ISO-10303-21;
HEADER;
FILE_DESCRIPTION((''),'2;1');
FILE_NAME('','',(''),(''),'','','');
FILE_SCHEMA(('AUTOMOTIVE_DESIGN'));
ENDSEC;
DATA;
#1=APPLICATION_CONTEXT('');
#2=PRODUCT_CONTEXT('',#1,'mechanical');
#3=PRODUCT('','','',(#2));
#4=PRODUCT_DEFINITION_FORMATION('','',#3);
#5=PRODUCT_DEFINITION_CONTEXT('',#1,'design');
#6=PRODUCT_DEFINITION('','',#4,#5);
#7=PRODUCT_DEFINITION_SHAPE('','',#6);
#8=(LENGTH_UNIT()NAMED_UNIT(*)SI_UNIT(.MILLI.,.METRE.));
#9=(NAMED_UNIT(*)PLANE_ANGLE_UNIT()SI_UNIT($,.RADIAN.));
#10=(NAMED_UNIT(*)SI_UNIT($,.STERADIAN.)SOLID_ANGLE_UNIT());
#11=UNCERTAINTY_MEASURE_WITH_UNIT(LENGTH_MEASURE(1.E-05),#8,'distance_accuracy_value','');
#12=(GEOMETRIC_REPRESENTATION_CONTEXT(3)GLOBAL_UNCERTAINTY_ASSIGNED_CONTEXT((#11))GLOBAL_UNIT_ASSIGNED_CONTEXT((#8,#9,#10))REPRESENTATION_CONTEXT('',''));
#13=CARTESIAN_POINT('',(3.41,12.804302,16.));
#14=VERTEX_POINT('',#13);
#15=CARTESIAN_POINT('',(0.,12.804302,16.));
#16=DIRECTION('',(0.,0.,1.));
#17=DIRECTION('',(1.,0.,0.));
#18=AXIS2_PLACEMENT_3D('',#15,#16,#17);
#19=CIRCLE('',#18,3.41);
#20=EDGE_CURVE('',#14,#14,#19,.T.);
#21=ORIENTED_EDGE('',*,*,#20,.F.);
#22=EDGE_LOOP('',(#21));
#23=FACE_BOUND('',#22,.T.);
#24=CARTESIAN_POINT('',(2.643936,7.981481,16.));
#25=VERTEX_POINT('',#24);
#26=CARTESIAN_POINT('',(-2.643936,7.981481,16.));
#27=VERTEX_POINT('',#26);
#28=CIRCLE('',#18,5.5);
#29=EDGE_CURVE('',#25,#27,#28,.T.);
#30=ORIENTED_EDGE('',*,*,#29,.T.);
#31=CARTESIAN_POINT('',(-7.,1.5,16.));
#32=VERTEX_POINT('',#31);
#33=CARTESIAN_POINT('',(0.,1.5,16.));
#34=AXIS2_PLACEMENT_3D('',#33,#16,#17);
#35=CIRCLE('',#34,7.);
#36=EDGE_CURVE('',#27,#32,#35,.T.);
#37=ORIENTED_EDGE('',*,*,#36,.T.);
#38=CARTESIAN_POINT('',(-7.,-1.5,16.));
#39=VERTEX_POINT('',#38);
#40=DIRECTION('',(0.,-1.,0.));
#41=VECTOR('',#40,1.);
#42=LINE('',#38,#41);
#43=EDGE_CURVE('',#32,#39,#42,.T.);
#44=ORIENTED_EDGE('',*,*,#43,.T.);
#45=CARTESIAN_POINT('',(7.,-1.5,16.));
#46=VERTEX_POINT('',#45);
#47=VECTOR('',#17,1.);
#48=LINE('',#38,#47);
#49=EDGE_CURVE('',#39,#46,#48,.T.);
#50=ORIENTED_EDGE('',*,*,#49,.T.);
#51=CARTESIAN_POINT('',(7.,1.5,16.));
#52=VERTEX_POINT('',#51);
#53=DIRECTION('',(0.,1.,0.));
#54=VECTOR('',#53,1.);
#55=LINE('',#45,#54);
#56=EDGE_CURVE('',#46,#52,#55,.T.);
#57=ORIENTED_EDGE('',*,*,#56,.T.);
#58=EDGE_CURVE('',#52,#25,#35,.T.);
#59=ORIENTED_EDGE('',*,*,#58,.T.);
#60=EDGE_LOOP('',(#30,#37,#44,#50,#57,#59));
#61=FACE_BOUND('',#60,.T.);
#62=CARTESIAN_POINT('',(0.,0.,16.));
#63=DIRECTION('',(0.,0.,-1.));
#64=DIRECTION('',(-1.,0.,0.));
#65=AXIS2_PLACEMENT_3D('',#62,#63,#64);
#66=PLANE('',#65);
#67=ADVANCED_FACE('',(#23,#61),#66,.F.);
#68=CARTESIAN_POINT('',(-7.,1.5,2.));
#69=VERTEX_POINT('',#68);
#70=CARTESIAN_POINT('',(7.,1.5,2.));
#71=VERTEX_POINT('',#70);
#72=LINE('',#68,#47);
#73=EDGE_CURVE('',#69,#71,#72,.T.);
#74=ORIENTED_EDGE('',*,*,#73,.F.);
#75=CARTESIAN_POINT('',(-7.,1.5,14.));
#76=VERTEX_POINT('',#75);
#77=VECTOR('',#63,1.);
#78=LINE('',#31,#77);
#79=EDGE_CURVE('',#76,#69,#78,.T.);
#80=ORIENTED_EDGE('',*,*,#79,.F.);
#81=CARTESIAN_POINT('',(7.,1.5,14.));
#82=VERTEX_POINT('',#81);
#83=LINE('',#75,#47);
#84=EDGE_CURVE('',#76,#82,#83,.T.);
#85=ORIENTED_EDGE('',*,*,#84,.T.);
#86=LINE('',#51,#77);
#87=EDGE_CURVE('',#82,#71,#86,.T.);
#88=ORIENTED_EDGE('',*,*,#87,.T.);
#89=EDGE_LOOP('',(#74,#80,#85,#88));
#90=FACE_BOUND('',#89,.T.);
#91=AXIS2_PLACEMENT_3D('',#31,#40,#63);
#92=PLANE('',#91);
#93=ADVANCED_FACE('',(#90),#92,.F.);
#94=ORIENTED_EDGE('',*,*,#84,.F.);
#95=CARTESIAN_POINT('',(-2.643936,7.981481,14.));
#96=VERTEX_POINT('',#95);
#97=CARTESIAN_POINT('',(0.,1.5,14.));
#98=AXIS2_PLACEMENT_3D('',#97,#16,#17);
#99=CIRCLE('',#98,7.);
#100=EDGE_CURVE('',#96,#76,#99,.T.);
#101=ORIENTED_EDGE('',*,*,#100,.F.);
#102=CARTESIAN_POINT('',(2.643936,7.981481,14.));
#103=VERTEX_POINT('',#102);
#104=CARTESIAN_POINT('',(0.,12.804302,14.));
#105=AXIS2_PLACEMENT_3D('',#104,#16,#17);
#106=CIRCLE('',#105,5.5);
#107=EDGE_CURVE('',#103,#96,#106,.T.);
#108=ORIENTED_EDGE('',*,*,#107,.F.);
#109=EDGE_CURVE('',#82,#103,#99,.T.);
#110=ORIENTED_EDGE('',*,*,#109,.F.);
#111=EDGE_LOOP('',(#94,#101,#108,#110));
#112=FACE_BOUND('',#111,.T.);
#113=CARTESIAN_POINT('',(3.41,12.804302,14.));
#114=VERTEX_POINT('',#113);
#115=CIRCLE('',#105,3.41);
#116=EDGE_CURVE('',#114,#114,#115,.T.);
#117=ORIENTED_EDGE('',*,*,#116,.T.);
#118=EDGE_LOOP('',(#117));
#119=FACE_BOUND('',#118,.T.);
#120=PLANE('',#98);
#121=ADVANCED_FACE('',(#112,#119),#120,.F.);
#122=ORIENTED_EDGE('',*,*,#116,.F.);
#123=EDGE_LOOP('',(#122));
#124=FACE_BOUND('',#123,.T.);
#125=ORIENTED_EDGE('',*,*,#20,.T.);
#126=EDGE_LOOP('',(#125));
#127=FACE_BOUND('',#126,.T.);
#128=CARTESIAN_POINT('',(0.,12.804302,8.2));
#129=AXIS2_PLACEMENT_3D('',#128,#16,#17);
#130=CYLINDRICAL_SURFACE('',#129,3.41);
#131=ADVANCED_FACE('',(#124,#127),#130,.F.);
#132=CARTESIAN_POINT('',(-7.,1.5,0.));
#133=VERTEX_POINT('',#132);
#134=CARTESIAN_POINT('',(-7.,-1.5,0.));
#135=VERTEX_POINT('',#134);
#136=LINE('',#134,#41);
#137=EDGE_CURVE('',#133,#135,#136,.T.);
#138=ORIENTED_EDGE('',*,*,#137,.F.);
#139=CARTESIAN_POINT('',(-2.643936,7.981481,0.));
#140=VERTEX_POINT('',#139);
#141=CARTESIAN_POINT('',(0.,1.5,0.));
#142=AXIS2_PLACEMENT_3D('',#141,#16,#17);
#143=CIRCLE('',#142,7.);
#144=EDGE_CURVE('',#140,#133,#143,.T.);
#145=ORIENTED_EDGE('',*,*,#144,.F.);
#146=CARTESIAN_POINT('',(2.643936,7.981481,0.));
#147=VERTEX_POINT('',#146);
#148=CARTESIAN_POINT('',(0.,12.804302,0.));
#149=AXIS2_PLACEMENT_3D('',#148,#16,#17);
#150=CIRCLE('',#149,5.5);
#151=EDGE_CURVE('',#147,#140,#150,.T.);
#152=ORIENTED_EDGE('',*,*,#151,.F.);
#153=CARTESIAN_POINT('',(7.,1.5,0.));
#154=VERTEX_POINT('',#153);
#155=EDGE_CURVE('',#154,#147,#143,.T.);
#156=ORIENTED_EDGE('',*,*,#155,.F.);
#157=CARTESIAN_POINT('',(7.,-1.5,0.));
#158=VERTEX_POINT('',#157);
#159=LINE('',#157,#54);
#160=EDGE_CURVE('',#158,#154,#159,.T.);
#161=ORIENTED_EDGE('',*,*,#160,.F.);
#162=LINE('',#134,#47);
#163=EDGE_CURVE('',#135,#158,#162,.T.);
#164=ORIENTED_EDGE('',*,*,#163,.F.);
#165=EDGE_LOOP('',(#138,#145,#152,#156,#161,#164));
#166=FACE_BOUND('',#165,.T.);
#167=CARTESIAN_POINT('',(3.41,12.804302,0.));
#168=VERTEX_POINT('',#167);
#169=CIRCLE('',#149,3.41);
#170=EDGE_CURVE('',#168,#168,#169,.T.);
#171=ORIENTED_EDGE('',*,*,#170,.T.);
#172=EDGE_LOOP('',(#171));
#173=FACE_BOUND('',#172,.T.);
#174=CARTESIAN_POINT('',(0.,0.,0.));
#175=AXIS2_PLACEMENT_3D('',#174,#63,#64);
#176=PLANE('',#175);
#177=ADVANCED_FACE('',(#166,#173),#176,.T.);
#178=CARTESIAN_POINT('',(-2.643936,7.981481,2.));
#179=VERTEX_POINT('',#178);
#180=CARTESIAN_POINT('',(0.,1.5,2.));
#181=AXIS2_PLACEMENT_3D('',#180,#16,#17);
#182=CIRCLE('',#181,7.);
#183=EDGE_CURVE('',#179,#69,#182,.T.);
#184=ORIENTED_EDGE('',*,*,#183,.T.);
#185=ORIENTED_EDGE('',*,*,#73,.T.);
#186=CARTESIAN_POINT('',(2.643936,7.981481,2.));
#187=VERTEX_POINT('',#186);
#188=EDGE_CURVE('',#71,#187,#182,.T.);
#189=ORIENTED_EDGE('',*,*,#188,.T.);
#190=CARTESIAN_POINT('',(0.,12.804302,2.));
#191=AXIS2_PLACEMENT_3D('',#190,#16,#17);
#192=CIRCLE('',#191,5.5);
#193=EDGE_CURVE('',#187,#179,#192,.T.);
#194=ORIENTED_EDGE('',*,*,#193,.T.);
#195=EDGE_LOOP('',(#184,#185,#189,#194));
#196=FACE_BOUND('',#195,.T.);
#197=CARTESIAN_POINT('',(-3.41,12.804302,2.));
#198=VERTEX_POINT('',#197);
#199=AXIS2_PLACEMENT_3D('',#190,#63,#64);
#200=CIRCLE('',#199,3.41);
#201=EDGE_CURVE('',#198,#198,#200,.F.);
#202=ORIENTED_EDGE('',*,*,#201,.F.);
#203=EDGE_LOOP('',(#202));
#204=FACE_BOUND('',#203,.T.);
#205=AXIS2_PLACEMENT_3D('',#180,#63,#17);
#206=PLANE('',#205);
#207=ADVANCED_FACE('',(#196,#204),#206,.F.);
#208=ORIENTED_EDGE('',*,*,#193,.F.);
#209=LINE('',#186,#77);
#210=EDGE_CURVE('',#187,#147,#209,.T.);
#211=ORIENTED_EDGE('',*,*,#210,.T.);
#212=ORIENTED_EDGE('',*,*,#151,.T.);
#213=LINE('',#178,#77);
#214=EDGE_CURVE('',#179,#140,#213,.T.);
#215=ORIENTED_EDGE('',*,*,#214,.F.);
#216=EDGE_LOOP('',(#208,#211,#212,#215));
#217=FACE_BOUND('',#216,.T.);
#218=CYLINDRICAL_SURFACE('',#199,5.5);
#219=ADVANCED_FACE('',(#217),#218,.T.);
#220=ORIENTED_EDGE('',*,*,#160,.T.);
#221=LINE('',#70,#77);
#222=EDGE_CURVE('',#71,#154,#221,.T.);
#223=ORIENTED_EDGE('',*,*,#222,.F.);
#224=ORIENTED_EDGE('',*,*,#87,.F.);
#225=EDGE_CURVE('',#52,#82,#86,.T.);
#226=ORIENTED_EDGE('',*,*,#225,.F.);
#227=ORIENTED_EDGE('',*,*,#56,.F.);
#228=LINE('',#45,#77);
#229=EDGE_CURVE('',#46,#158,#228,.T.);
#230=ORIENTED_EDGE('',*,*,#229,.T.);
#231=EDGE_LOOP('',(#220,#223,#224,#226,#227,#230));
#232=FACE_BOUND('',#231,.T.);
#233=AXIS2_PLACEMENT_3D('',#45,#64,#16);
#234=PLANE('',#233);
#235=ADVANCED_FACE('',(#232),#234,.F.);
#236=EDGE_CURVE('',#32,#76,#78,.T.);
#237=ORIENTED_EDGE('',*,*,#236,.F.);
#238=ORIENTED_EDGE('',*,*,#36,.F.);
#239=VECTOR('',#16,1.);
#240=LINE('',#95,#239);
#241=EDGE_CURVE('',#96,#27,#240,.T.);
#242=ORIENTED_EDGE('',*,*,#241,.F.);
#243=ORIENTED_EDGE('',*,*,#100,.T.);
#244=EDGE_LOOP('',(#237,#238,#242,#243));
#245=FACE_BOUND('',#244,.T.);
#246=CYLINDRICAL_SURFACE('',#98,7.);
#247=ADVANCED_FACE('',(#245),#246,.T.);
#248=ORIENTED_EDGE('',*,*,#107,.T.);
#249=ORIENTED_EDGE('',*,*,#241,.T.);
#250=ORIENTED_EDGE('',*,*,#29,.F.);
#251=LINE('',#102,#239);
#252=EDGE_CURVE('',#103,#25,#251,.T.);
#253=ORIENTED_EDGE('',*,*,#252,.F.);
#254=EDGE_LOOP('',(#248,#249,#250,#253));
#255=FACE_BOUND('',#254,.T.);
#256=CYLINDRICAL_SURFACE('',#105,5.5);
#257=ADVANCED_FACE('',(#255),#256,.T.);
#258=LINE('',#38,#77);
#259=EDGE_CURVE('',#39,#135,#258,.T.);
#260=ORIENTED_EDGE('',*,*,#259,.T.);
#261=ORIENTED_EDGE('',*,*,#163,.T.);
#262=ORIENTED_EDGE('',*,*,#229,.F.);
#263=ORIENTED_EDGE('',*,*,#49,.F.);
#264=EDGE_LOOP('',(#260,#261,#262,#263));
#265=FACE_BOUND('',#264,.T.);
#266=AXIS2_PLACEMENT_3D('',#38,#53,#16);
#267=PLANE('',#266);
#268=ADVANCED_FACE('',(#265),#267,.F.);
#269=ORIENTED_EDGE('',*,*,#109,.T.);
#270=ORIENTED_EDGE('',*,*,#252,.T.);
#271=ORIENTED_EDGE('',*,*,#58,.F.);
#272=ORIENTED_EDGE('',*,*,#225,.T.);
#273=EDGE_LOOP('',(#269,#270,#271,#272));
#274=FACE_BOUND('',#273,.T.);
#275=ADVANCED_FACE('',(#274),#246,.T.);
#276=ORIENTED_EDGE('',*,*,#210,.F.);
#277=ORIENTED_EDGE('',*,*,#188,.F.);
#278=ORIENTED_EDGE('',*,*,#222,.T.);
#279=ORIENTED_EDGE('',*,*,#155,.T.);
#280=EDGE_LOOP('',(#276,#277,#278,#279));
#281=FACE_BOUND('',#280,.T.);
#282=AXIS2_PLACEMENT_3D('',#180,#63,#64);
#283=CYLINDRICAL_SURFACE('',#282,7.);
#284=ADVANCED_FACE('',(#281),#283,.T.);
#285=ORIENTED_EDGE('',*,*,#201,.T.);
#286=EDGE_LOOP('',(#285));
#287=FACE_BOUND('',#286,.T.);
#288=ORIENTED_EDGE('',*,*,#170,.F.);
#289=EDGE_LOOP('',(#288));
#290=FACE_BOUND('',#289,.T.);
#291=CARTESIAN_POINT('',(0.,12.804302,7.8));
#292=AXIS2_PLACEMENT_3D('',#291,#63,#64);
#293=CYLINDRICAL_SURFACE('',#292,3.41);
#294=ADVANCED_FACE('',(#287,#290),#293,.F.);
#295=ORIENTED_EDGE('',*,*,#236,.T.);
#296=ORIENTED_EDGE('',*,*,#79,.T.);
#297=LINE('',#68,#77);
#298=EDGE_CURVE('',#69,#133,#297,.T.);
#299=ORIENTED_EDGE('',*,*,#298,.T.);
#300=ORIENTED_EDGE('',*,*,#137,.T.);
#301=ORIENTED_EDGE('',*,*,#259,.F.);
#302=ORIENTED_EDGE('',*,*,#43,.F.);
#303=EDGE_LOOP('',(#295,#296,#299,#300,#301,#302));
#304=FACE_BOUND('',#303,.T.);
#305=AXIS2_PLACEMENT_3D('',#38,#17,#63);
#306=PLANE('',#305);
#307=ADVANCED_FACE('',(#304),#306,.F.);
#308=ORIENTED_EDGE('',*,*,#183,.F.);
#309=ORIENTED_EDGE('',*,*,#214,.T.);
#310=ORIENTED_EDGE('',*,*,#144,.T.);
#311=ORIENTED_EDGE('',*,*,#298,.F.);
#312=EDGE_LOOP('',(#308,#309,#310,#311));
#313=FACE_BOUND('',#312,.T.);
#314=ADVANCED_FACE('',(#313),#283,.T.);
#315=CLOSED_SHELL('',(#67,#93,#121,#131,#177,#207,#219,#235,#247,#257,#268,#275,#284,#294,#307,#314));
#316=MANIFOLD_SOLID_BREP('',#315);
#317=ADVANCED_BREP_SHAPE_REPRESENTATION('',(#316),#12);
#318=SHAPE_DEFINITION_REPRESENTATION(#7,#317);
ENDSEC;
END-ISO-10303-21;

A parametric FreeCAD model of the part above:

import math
import FreeCAD as App
import Part
import Sketcher


def add_polygon(sketch, points):
    """Adds a closed chain of lines whose ends are joined by coincident constraints."""
    first, n = sketch.GeometryCount, len(points)
    for a, b in zip(points, points[1:] + points[:1]):
        sketch.addGeometry(Part.LineSegment(App.Vector(*a, 0), App.Vector(*b, 0)), False)
    for i in range(n):
        sketch.addConstraint(Sketcher.Constraint("Coincident", first + i, 2, first + (i + 1) % n, 1))

doc = App.newDocument("Part")
params = doc.addObject("Spreadsheet::Sheet", "Params")
for row, (alias, value) in enumerate([
    ("sketch1_width", "14 mm"),
    ("sketch1_height", "3 mm"),
    ("pad1_length", "16 mm"),
    ("sketch2_radius", "7 mm"),
    ("sketch2_radius2", "5.5 mm"),
    ("pad2_length", "2 mm"),
    ("sketch3_diameter", "6.82 mm"),
    ("pocket1_length", "7.8 mm"),
], start=1):
    params.set(f"A{row}", alias)
    params.set(f"B{row}", "=" + value)
    params.setAlias(f"B{row}", alias)

body = doc.addObject("PartDesign::Body", "Body")

# Sketch on XY plane
sketch1 = doc.addObject("Sketcher::SketchObject", "Sketch")
body.addObject(sketch1)
sketch1.AttachmentSupport = (doc.XY_Plane, [""])
sketch1.MapMode = "FlatFace"
add_polygon(sketch1, [(-7, 1.5), (-7, -1.5), (7, -1.5), (7, 1.5)])  # lines 0-3
sketch1.addConstraint(Sketcher.Constraint("Vertical", 0))
sketch1.addConstraint(Sketcher.Constraint("Horizontal", 1))
sketch1.addConstraint(Sketcher.Constraint("Vertical", 2))
sketch1.addConstraint(Sketcher.Constraint("Horizontal", 3))
sketch1.addConstraint(Sketcher.Constraint("Symmetric", 0, 2, 2, 2, -1, 1))
sketch1.addConstraint(Sketcher.Constraint("DistanceX", 1, 1, 1, 2, 14.0))
sketch1.addConstraint(Sketcher.Constraint("DistanceY", 0, 2, 0, 1, 3.0))
sketch1.setExpression("Constraints[9]", "Params.sketch1_width")
sketch1.setExpression("Constraints[10]", "Params.sketch1_height")
pad1 = doc.addObject("PartDesign::Pad", "Pad")
body.addObject(pad1)
pad1.Profile = sketch1
pad1.setExpression("Length", "Params.pad1_length")

# Sketch on XY plane
sketch2 = doc.addObject("Sketcher::SketchObject", "Sketch001")
body.addObject(sketch2)
sketch2.AttachmentSupport = (doc.XY_Plane, [""])
sketch2.MapMode = "FlatFace"
sketch2.AttachmentOffset = App.Placement(App.Vector(0, 0, 16), App.Rotation())
sketch2.addGeometry(Part.LineSegment(App.Vector(-7, 2, 0), App.Vector(7, 2, 0)), False)
sketch2.addGeometry(Part.ArcOfCircle(Part.Circle(App.Vector(0, 2, 0), App.Vector(0, 0, 1), 7), math.radians(0), math.radians(68)), False)
sketch2.addGeometry(Part.ArcOfCircle(Part.Circle(App.Vector(0, 13, 0), App.Vector(0, 0, 1), 6), math.radians(-61), math.radians(241)), False)
sketch2.addGeometry(Part.ArcOfCircle(Part.Circle(App.Vector(0, 2, 0), App.Vector(0, 0, 1), 7), math.radians(112), math.radians(180)), False)
sketch2.addConstraint(Sketcher.Constraint("Coincident", 0, 2, 1, 1))
sketch2.addConstraint(Sketcher.Constraint("Coincident", 1, 2, 2, 1))
sketch2.addConstraint(Sketcher.Constraint("Coincident", 2, 2, 3, 1))
sketch2.addConstraint(Sketcher.Constraint("Coincident", 3, 2, 0, 1))
sketch2.addConstraint(Sketcher.Constraint("Horizontal", 0))
sketch2.addConstraint(Sketcher.Constraint("Coincident", 3, 3, 1, 3))
sketch2.addConstraint(Sketcher.Constraint("Equal", 1, 3))
sketch2.addConstraint(Sketcher.Constraint("Symmetric", 1, 2, 2, 2, -2))
sketch2.addConstraint(Sketcher.Constraint("Horizontal", 3, 3, 0, 2))
sketch2.addConstraint(Sketcher.Constraint("Radius", 1, 7.0))
sketch2.addConstraint(Sketcher.Constraint("Radius", 2, 5.5))
sketch2.addConstraint(Sketcher.Constraint("DistanceY", -1, 1, 1, 3, 1.5))
sketch2.addConstraint(Sketcher.Constraint("DistanceY", -1, 1, 1, 2, 7.981481))
sketch2.setExpression("Constraints[9]", "Params.sketch2_radius")
sketch2.setExpression("Constraints[10]", "Params.sketch2_radius2")
pad2 = doc.addObject("PartDesign::Pad", "Pad001")
body.addObject(pad2)
pad2.Profile = sketch2
pad2.setExpression("Length", "Params.pad2_length")
pad2.Reversed = True

# Sketch on XY plane
sketch3 = doc.addObject("Sketcher::SketchObject", "Sketch002")
body.addObject(sketch3)
sketch3.AttachmentSupport = (doc.XY_Plane, [""])
sketch3.MapMode = "FlatFace"
sketch3.AttachmentOffset = App.Placement(App.Vector(0, 0, 16), App.Rotation())
sketch3.addGeometry(Part.Circle(App.Vector(0, 12.8, 0), App.Vector(0, 0, 1), 3.4), False)
sketch3.addConstraint(Sketcher.Constraint("PointOnObject", 0, 3, -2))
sketch3.addConstraint(Sketcher.Constraint("Diameter", 0, 6.82))
sketch3.addConstraint(Sketcher.Constraint("DistanceY", -1, 1, 0, 3, 12.804302))
sketch3.setExpression("Constraints[1]", "Params.sketch3_diameter")
pocket1 = doc.addObject("PartDesign::Pocket", "Pocket")
body.addObject(pocket1)
pocket1.Profile = sketch3
pocket1.setExpression("Length", "Params.pocket1_length")
doc.recompute()

datumplane = doc.addObject("PartDesign::Plane", "DatumPlane")
body.addObject(datumplane)
datumplane.AttachmentSupport = (doc.XY_Plane, [""])
datumplane.MapMode = "FlatFace"
datumplane.AttachmentOffset = App.Placement(App.Vector(0, 0, 8), App.Rotation())
mirrored = doc.addObject("PartDesign::Mirrored", "Mirrored")
body.addObject(mirrored)
mirrored.Originals = [pad2, pocket1]
mirrored.MirrorPlane = (datumplane, [""])
body.Tip = mirrored

doc.recompute()
